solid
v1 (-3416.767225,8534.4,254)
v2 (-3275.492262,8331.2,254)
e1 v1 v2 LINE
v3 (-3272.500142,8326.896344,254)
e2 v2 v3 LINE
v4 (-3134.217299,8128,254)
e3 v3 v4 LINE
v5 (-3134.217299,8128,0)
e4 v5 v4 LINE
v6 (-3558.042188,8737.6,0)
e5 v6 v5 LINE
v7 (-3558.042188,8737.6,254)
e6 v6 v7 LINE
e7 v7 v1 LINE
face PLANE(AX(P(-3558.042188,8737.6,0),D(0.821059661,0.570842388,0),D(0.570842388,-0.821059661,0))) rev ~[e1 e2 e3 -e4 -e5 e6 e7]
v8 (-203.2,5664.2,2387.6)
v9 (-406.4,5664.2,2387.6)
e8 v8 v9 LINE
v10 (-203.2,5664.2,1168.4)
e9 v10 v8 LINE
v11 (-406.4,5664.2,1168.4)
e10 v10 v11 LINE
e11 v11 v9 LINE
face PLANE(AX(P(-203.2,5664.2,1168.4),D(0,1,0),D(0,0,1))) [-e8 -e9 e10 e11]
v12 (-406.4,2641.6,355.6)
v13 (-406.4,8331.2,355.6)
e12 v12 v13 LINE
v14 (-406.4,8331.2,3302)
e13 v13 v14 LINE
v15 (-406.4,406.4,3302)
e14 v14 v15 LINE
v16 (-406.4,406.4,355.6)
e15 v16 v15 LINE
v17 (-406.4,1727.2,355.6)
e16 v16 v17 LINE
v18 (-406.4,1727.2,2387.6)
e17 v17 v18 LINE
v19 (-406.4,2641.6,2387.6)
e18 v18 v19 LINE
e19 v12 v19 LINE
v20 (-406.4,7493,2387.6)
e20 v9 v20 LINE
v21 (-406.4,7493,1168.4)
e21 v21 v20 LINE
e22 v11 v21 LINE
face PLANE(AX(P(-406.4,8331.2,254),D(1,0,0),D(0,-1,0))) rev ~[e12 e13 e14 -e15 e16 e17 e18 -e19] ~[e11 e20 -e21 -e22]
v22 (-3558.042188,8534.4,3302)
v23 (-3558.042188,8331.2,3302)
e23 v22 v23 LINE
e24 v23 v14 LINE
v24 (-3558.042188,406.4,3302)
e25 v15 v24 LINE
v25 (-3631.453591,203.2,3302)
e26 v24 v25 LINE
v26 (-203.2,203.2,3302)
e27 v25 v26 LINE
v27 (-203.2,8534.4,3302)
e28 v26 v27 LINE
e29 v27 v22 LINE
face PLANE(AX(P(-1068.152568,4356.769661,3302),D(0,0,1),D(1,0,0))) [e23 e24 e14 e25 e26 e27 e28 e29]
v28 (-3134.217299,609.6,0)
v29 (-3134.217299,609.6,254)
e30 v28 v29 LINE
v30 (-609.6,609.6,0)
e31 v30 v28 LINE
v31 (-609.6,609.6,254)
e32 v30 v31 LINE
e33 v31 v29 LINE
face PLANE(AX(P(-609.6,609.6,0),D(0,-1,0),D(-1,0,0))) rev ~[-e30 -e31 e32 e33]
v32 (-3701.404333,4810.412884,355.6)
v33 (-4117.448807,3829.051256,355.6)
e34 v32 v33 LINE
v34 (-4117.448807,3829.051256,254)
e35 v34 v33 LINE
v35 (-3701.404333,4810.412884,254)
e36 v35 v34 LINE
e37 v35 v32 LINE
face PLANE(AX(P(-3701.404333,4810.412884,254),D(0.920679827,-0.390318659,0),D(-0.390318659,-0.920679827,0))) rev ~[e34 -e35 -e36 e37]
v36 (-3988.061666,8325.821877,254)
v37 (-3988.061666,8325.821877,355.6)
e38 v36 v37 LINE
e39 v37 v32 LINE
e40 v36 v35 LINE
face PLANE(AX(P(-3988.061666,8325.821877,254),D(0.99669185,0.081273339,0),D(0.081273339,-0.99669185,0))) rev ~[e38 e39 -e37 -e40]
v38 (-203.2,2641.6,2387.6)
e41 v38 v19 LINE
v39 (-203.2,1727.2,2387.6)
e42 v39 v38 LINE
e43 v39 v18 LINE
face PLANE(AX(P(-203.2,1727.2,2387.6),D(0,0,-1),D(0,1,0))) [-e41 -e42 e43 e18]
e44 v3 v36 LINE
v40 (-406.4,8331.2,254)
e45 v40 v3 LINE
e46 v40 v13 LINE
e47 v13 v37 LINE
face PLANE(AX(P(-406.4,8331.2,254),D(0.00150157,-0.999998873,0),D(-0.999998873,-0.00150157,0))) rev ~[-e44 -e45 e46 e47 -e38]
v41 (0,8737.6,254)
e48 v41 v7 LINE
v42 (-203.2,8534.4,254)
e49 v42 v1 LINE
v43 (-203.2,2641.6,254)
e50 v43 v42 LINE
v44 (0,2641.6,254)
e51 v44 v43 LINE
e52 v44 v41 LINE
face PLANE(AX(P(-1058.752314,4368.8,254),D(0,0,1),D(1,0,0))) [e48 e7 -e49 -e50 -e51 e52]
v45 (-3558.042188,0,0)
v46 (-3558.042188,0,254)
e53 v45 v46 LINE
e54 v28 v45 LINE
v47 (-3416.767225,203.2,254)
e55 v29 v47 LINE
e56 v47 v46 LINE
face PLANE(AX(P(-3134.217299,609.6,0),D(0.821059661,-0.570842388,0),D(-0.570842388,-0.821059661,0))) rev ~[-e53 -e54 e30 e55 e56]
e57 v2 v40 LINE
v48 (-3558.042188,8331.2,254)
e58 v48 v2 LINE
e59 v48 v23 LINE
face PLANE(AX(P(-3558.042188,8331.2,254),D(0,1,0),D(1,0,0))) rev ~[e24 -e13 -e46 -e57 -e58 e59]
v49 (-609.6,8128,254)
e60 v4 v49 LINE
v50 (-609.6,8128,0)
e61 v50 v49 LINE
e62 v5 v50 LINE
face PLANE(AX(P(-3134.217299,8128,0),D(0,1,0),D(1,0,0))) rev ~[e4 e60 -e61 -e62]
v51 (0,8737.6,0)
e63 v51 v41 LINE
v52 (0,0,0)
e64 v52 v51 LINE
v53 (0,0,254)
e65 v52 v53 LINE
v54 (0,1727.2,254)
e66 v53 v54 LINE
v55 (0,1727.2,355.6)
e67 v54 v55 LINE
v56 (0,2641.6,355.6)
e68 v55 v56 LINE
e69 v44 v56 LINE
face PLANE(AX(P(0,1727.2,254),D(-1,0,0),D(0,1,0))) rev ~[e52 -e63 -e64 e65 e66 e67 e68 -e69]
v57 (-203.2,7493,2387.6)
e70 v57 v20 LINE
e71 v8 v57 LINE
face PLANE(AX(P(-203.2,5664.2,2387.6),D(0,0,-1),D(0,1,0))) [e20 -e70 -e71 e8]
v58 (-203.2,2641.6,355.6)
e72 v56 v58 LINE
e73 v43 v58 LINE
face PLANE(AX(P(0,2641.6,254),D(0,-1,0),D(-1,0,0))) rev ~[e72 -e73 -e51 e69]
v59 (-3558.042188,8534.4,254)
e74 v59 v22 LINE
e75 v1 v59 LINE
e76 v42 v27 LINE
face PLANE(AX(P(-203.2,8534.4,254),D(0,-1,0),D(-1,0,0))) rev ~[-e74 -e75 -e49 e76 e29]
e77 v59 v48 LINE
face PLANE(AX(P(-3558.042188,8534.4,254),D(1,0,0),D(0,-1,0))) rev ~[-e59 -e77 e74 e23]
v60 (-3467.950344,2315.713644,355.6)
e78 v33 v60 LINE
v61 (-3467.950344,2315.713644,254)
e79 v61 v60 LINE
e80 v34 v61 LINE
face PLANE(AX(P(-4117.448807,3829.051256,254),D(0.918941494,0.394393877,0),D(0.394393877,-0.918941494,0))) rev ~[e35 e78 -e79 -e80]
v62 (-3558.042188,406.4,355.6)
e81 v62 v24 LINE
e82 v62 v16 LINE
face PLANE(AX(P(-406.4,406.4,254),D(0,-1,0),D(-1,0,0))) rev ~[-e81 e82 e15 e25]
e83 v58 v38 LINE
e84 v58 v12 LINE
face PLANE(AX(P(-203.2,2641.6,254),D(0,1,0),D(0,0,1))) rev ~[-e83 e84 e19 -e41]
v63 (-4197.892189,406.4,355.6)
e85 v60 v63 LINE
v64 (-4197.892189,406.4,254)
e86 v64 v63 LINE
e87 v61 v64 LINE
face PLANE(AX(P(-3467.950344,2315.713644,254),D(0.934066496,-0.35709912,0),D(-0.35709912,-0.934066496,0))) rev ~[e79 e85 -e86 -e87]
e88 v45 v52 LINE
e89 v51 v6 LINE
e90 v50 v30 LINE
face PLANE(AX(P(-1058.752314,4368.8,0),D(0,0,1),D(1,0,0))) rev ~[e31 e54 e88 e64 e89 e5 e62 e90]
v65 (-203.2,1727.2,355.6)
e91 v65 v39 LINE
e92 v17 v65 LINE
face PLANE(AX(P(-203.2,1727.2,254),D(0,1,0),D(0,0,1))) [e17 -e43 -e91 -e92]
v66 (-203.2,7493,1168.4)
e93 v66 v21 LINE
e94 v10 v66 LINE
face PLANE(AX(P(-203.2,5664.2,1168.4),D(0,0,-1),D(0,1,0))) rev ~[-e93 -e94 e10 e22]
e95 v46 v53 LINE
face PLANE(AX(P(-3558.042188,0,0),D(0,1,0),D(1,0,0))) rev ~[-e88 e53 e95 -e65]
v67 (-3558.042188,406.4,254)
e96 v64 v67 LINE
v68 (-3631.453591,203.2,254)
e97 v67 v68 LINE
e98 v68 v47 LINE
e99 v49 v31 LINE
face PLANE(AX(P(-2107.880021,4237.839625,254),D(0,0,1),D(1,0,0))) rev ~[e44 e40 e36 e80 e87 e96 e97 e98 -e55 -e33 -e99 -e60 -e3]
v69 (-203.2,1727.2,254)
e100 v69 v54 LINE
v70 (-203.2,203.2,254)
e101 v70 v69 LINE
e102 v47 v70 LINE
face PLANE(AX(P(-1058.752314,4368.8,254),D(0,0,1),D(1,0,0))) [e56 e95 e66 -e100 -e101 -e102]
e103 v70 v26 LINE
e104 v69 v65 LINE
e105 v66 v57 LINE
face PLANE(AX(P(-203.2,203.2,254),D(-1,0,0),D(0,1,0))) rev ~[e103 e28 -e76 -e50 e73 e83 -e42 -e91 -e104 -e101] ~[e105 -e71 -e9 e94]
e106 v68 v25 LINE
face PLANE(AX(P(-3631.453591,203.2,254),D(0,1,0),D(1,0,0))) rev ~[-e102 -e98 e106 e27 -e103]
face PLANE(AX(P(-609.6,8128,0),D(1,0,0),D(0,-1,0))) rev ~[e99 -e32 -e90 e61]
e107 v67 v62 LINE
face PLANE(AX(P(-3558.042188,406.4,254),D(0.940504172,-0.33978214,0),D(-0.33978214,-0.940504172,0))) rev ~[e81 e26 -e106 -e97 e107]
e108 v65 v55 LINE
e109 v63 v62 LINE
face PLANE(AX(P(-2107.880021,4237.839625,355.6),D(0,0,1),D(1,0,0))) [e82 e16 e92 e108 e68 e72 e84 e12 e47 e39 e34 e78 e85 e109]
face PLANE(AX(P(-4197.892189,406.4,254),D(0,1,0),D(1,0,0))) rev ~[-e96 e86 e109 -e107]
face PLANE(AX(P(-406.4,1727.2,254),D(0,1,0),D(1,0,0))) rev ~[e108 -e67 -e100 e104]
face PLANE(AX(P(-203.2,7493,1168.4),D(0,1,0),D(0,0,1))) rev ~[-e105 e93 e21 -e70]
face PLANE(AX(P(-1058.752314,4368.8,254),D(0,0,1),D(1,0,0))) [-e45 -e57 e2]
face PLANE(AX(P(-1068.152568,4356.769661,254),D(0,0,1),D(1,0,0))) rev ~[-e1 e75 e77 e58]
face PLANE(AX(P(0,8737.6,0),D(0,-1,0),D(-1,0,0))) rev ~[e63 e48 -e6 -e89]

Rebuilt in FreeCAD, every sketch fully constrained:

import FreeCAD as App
import Part
import Sketcher
from FreeCAD import Vector
Q = App.Units.Quantity


def add_polygon(sketch, points):
    """Adds a closed chain of lines whose ends are joined by coincident constraints."""
    first, n = sketch.GeometryCount, len(points)
    for a, b in zip(points, points[1:] + points[:1]):
        sketch.addGeometry(Part.LineSegment(App.Vector(*a, 0), App.Vector(*b, 0)), False)
    for i in range(n):
        sketch.addConstraint(Sketcher.Constraint("Coincident", first + i, 2, first + (i + 1) % n, 1))

doc = App.newDocument("Part")
body = doc.addObject("PartDesign::Body", "Body")

# Sketch on XY plane
sketch1 = body.newObject("Sketcher::SketchObject", "Sketch")
sketch1.AttachmentSupport = (doc.getObject("XY_Plane"), [""])
sketch1.MapMode = "FlatFace"
add_polygon(sketch1, [(-3558.042188, 0), (0, 0), (0, 8737.6), (-3558.042188, 8737.6), (-3134.217299, 8128), (-609.6, 8128), (-609.6, 609.6), (-3134.217299, 609.6)])  # lines 0-7
sketch1.addConstraint(Sketcher.Constraint("Horizontal", 0))
sketch1.addConstraint(Sketcher.Constraint("Vertical", 1))
sketch1.addConstraint(Sketcher.Constraint("Horizontal", 2))
sketch1.addConstraint(Sketcher.Constraint("Horizontal", 4))
sketch1.addConstraint(Sketcher.Constraint("Vertical", 5))
sketch1.addConstraint(Sketcher.Constraint("Horizontal", 6))
sketch1.addConstraint(Sketcher.Constraint("Coincident", 0, 2, -1, 1))
sketch1.addConstraint(Sketcher.Constraint("Vertical", 3, 2, 6, 2))
sketch1.addConstraint(Sketcher.Constraint("Vertical", 2, 2, 7, 2))
sketch1.addConstraint(Sketcher.Constraint("Equal", 3, 7))
sketch1.addConstraint(Sketcher.Constraint("DistanceY", 1, 1, 1, 2, Q("344 in")))
sketch1.addConstraint(Sketcher.Constraint("DistanceY", 5, 2, 5, 1, Q("296 in")))
sketch1.addConstraint(Sketcher.Constraint("DistanceX", 4, 2, -1, 1, Q("24 in")))
sketch1.addConstraint(Sketcher.Constraint("DistanceX", 4, 1, 4, 2, Q("2524.617299 mm")))
sketch1.addConstraint(Sketcher.Constraint("Distance", 3, Q("742.455181 mm")))
pad1 = body.newObject("PartDesign::Pad", "Pad")
pad1.Profile = sketch1
pad1.Length = Q("10 in")

# Sketch on XY plane
sketch2 = body.newObject("Sketcher::SketchObject", "Sketch001")
sketch2.AttachmentSupport = (doc.getObject("XY_Plane"), [""])
sketch2.MapMode = "FlatFace"
sketch2.AttachmentOffset = App.Placement(Vector(0, 0, 10 * 25.4), App.Rotation())
add_polygon(sketch2, [(-3558.042188, 406.4), (-3631.453591, 203.2), (-203.2, 203.2), (-203.2, 8534.4), (-3558.042188, 8534.4), (-3558.042188, 8331.2), (-406.4, 8331.2), (-406.4, 406.4)])  # lines 0-7
sketch2.addConstraint(Sketcher.Constraint("Horizontal", 1))
sketch2.addConstraint(Sketcher.Constraint("Vertical", 2))
sketch2.addConstraint(Sketcher.Constraint("Horizontal", 3))
sketch2.addConstraint(Sketcher.Constraint("Vertical", 4))
sketch2.addConstraint(Sketcher.Constraint("Horizontal", 5))
sketch2.addConstraint(Sketcher.Constraint("Vertical", 6))
sketch2.addConstraint(Sketcher.Constraint("Horizontal", 7))
sketch2.addConstraint(Sketcher.Constraint("Vertical", 4, 2, 7, 2))
sketch2.addConstraint(Sketcher.Constraint("DistanceY", 2, 1, 2, 2, Q("328 in")))
sketch2.addConstraint(Sketcher.Constraint("DistanceY", 4, 2, 4, 1, Q("8 in")))
sketch2.addConstraint(Sketcher.Constraint("DistanceY", 6, 2, 6, 1, Q("312 in")))
sketch2.addConstraint(Sketcher.Constraint("DistanceY", -1, 1, 0, 2, Q("8 in")))
sketch2.addConstraint(Sketcher.Constraint("DistanceX", 1, 2, -1, 1, Q("8 in")))
sketch2.addConstraint(Sketcher.Constraint("DistanceX", 5, 2, -1, 1, Q("16 in")))
sketch2.addConstraint(Sketcher.Constraint("DistanceX", 1, 1, 1, 2, Q("3428.253591 mm")))
sketch2.addConstraint(Sketcher.Constraint("DistanceX", 3, 2, 3, 1, Q("3354.842188 mm")))
pad2 = body.newObject("PartDesign::Pad", "Pad001")
pad2.Profile = sketch2
pad2.Length = Q("120 in")

# Sketch on YZ plane
sketch3 = body.newObject("Sketcher::SketchObject", "Sketch002")
sketch3.AttachmentSupport = (doc.getObject("YZ_Plane"), [""])
sketch3.MapMode = "FlatFace"
sketch3.AttachmentOffset = App.Placement(Vector(0, 0, -8 * 25.4), App.Rotation())
add_polygon(sketch3, [(1727.2, 2387.6), (1727.2, 254), (2641.6, 254), (2641.6, 2387.6)])  # lines 0-3
add_polygon(sketch3, [(5664.2, 2387.6), (5664.2, 1168.4), (7493, 1168.4), (7493, 2387.6)])  # lines 4-7
sketch3.addConstraint(Sketcher.Constraint("Vertical", 0))
sketch3.addConstraint(Sketcher.Constraint("Horizontal", 1))
sketch3.addConstraint(Sketcher.Constraint("Vertical", 2))
sketch3.addConstraint(Sketcher.Constraint("Horizontal", 3))
sketch3.addConstraint(Sketcher.Constraint("Vertical", 4))
sketch3.addConstraint(Sketcher.Constraint("Horizontal", 5))
sketch3.addConstraint(Sketcher.Constraint("Vertical", 6))
sketch3.addConstraint(Sketcher.Constraint("Horizontal", 7))
sketch3.addConstraint(Sketcher.Constraint("Horizontal", 3, 2, 6, 2))
sketch3.addConstraint(Sketcher.Constraint("DistanceX", 1, 1, 1, 2, Q("36 in")))
sketch3.addConstraint(Sketcher.Constraint("DistanceX", 5, 1, 5, 2, Q("72 in")))
sketch3.addConstraint(Sketcher.Constraint("DistanceY", 0, 2, 0, 1, Q("84 in")))
sketch3.addConstraint(Sketcher.Constraint("DistanceY", 4, 2, 4, 1, Q("48 in")))
sketch3.addConstraint(Sketcher.Constraint("DistanceX", -1, 1, 0, 2, Q("68 in")))
sketch3.addConstraint(Sketcher.Constraint("DistanceY", -1, 1, 0, 2, Q("10 in")))
sketch3.addConstraint(Sketcher.Constraint("DistanceX", -1, 1, 4, 2, Q("223 in")))
pocket1 = body.newObject("PartDesign::Pocket", "Pocket")
pocket1.Profile = sketch3
pocket1.Length = Q("8 in")

# Sketch on XY plane
sketch4 = body.newObject("Sketcher::SketchObject", "Sketch003")
sketch4.AttachmentSupport = (doc.getObject("XY_Plane"), [""])
sketch4.MapMode = "FlatFace"
sketch4.AttachmentOffset = App.Placement(Vector(0, 0, 10 * 25.4), App.Rotation())
add_polygon(sketch4, [(-4197.892189, 406.4), (-406.4, 406.4), (-406.4, 1727.2), (0, 1727.2), (0, 2641.6), (-406.4, 2641.6), (-406.4, 8331.2), (-3988.061666, 8325.821877), (-3701.404333, 4810.412884), (-4117.448807, 3829.051256), (-3467.950344, 2315.713644)])  # lines 0-10
sketch4.addConstraint(Sketcher.Constraint("Horizontal", 0))
sketch4.addConstraint(Sketcher.Constraint("Vertical", 1))
sketch4.addConstraint(Sketcher.Constraint("Horizontal", 2))
sketch4.addConstraint(Sketcher.Constraint("Vertical", 3))
sketch4.addConstraint(Sketcher.Constraint("Horizontal", 4))
sketch4.addConstraint(Sketcher.Constraint("Vertical", 5))
sketch4.addConstraint(Sketcher.Constraint("PointOnObject", 2, 2, -2))
sketch4.addConstraint(Sketcher.Constraint("Vertical", 1, 2, 4, 2))
sketch4.addConstraint(Sketcher.Constraint("DistanceX", 2, 1, 2, 2, Q("16 in")))
sketch4.addConstraint(Sketcher.Constraint("DistanceY", 1, 1, 1, 2, Q("52 in")))
sketch4.addConstraint(Sketcher.Constraint("DistanceY", 3, 1, 3, 2, Q("36 in")))
sketch4.addConstraint(Sketcher.Constraint("DistanceY", 5, 1, 5, 2, Q("224 in")))
sketch4.addConstraint(Sketcher.Constraint("DistanceY", -1, 1, 0, 2, Q("16 in")))
sketch4.addConstraint(Sketcher.Constraint("DistanceX", 0, 1, 0, 2, Q("3791.492189 mm")))
sketch4.addConstraint(Sketcher.Constraint("DistanceY", 8, 2, 7, 2, Q("981.361628 mm")))
sketch4.addConstraint(Sketcher.Constraint("DistanceX", 8, 2, 6, 2, Q("129.387141 mm")))
sketch4.addConstraint(Sketcher.Constraint("DistanceY", 8, 2, 6, 2, Q("4496.770621 mm")))
sketch4.addConstraint(Sketcher.Constraint("DistanceX", 7, 2, 9, 2, Q("233.453989 mm")))
sketch4.addConstraint(Sketcher.Constraint("DistanceY", 9, 2, 7, 2, Q("2494.69924 mm")))
sketch4.addConstraint(Sketcher.Constraint("Distance", 6, Q("3581.665704 mm")))
sketch4.addConstraint(Sketcher.Constraint("Distance", 7, Q("3527.077092 mm")))
sketch4.addConstraint(Sketcher.Constraint("Distance", 10, Q("2044.087495 mm")))
pad3 = body.newObject("PartDesign::Pad", "Pad002")
pad3.Profile = sketch4
pad3.Length = Q("4 in")

doc.recompute()
